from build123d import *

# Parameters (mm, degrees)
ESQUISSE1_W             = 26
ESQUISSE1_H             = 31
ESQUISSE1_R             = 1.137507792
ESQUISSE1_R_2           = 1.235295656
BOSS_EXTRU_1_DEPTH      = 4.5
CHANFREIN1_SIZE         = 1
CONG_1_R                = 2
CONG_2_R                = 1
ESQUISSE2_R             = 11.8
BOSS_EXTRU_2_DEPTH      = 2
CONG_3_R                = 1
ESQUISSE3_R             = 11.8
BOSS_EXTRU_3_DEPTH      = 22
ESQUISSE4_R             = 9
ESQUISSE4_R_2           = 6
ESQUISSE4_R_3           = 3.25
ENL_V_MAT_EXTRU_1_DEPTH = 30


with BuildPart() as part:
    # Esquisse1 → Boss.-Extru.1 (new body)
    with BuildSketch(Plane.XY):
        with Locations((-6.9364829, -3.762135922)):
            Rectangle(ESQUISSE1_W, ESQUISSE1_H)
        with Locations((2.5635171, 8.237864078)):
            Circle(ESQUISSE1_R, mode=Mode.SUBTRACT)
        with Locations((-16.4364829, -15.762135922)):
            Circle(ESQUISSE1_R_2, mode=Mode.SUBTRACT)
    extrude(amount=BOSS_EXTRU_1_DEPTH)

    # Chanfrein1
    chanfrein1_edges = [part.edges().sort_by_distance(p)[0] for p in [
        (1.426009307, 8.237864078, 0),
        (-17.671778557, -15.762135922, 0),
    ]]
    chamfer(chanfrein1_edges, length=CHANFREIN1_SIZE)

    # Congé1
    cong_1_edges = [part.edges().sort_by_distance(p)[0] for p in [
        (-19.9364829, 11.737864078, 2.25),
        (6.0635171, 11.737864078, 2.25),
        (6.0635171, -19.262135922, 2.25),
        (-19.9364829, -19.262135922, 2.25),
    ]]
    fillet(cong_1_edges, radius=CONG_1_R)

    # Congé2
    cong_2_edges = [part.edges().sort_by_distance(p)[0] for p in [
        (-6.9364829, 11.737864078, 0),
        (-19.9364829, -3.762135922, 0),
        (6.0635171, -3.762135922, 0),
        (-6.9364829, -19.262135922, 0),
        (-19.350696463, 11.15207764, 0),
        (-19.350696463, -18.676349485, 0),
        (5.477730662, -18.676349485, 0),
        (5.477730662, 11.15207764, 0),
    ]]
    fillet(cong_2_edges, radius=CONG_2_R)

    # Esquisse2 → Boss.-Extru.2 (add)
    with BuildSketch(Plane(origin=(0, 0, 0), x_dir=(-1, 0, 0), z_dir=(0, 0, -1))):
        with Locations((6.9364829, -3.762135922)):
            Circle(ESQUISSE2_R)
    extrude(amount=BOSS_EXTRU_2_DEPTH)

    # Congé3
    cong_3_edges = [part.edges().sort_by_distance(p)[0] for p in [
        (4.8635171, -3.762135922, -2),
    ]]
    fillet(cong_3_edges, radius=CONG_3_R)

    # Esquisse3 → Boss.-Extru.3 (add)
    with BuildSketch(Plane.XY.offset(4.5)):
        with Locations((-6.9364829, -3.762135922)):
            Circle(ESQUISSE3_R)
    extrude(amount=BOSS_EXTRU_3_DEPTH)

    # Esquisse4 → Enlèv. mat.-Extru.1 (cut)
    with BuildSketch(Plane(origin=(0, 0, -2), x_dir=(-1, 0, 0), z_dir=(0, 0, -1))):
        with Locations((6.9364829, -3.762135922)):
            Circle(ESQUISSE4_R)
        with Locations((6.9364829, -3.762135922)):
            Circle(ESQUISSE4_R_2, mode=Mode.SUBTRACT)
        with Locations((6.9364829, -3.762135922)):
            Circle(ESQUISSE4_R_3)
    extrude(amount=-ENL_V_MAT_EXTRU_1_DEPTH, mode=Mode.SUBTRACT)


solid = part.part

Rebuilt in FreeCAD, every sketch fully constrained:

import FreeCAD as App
import Part
import Sketcher
from FreeCAD import Vector
Q = App.Units.Quantity


def edges_at(feature, points):
    """Names of the edges that pass closest to the given points."""
    edges = feature.Shape.Edges
    near = lambda p: min(range(len(edges)), key=lambda i: edges[i].distToShape(Part.Vertex(*p))[0])
    return sorted({f"Edge{near(p) + 1}" for p in points})


def add_polygon(sketch, points):
    """Adds a closed chain of lines whose ends are joined by coincident constraints."""
    first, n = sketch.GeometryCount, len(points)
    for a, b in zip(points, points[1:] + points[:1]):
        sketch.addGeometry(Part.LineSegment(App.Vector(*a, 0), App.Vector(*b, 0)), False)
    for i in range(n):
        sketch.addConstraint(Sketcher.Constraint("Coincident", first + i, 2, first + (i + 1) % n, 1))

doc = App.newDocument("Part")
params = doc.addObject("Spreadsheet::Sheet", "Params")
for row, (alias, value) in enumerate([
    ("sketch1_width", "26 mm"),
    ("sketch1_height", "31 mm"),
    ("pad1_length", "4.5 mm"),
    ("chamfer_size", "1 mm"),
    ("fillet_radius", "2 mm"),
    ("fillet2_radius", "1 mm"),
    ("sketch2_diameter", "23.6 mm"),
    ("pad2_length", "2 mm"),
    ("fillet3_radius", "1 mm"),
    ("sketch3_diameter", "23.6 mm"),
    ("pad3_length", "22 mm"),
    ("sketch4_diameter", "18 mm"),
    ("sketch4_diameter2", "12 mm"),
    ("sketch4_diameter3", "6.5 mm"),
    ("pocket1_length", "30 mm"),
], start=1):
    params.set(f"A{row}", alias)
    params.set(f"B{row}", "=" + value)
    params.setAlias(f"B{row}", alias)

body = doc.addObject("PartDesign::Body", "Body")
body.AllowCompound = True

sketch1 = body.newObject("Sketcher::SketchObject", "Sketch")
sketch1.AttachmentSupport = (doc.getObject("XY_Plane"), [""])
sketch1.MapMode = "FlatFace"
add_polygon(sketch1, [(-19.9, 11.7), (-19.9, -19.3), (6.1, -19.3), (6.1, 11.7)])
sketch1.addGeometry(Part.Circle(Vector(-16.4, -15.8, 0), Vector(0, 0, 1), 1.2), False)
sketch1.addGeometry(Part.Circle(Vector(2.6, 8.2, 0), Vector(0, 0, 1), 1.1), False)
sketch1.addConstraint([
    Sketcher.Constraint("Vertical", 0),
    Sketcher.Constraint("Horizontal", 1),
    Sketcher.Constraint("Vertical", 2),
    Sketcher.Constraint("Horizontal", 3),
    Sketcher.Constraint("DistanceX", 1, 1, 1, 2, Q("26 mm")),
    Sketcher.Constraint("DistanceY", 0, 2, 0, 1, Q("31 mm")),
    Sketcher.Constraint("DistanceX", 4, 3, 5, 3, Q("19 mm")),
    Sketcher.Constraint("DistanceY", 4, 3, 5, 3, Q("24 mm")),
    Sketcher.Constraint("DistanceX", 0, 2, 4, 3, Q("3.5 mm")),
    Sketcher.Constraint("DistanceY", 0, 2, 4, 3, Q("3.5 mm")),
    Sketcher.Constraint("Diameter", 4, Q("2.470591 mm")),
    Sketcher.Constraint("Diameter", 5, Q("2.275016 mm")),
    Sketcher.Constraint("DistanceX", 4, 3, -1, 1, Q("16.436483 mm")),
    Sketcher.Constraint("DistanceY", 4, 3, -1, 1, Q("15.762136 mm")),
])
sketch1.setExpression("Constraints[8]", "Params.sketch1_width")
sketch1.setExpression("Constraints[9]", "Params.sketch1_height")
pad1 = body.newObject("PartDesign::Pad", "Pad")
pad1.Profile = sketch1
pad1.setExpression("Length", "Params.pad1_length")
doc.recompute()

chamfer = body.newObject("PartDesign::Chamfer", "Chamfer")
chamfer.Base = (pad1, edges_at(pad1, [(1.426, 8.238, 0), (-17.672, -15.762, 0)]))
chamfer.setExpression("Size", "Params.chamfer_size")
doc.recompute()

fillet = body.newObject("PartDesign::Fillet", "Fillet")
fillet.Base = (chamfer, edges_at(chamfer, [
    (-19.936, 11.738, 2.25),
    (6.064, 11.738, 2.25),
    (6.064, -19.262, 2.25),
    (-19.936, -19.262, 2.25),
]))
fillet.setExpression("Radius", "Params.fillet_radius")
doc.recompute()

fillet2 = body.newObject("PartDesign::Fillet", "Fillet001")
fillet2.Base = (fillet, edges_at(fillet, [
    (-6.936, 11.738, 0),
    (-19.936, -3.762, 0),
    (6.064, -3.762, 0),
    (-6.936, -19.262, 0),
    (-19.351, 11.152, 0),
    (-19.351, -18.676, 0),
    (5.478, -18.676, 0),
    (5.478, 11.152, 0),
]))
fillet2.setExpression("Radius", "Params.fillet2_radius")

sketch2 = body.newObject("Sketcher::SketchObject", "Sketch001")
sketch2.AttachmentSupport = (doc.getObject("XY_Plane"), [""])
sketch2.MapMode = "FlatFace"
sketch2.addGeometry(Part.Circle(Vector(-7, -4, 0), Vector(0, 0, 1), 12), False)
sketch2.addConstraint([
    Sketcher.Constraint("Diameter", 0, Q("23.6 mm")),
    Sketcher.Constraint("DistanceX", 0, 3, -1, 1, Q("6.936483 mm")),
    Sketcher.Constraint("DistanceY", 0, 3, -1, 1, Q("3.762136 mm")),
])
sketch2.setExpression("Constraints[0]", "Params.sketch2_diameter")
pad2 = body.newObject("PartDesign::Pad", "Pad001")
pad2.Profile = sketch2
pad2.setExpression("Length", "Params.pad2_length")
pad2.Reversed = True
doc.recompute()

fillet3 = body.newObject("PartDesign::Fillet", "Fillet002")
fillet3.Base = (pad2, edges_at(pad2, [(4.864, -3.762, -2)]))
fillet3.setExpression("Radius", "Params.fillet3_radius")

sketch3 = body.newObject("Sketcher::SketchObject", "Sketch002")
sketch3.AttachmentSupport = (doc.getObject("XY_Plane"), [""])
sketch3.MapMode = "FlatFace"
sketch3.AttachmentOffset = App.Placement(Vector(0, 0, 4.5), App.Rotation())
sketch3.addGeometry(Part.Circle(Vector(-7, -4, 0), Vector(0, 0, 1), 12), False)
sketch3.addConstraint([
    Sketcher.Constraint("Diameter", 0, Q("23.6 mm")),
    Sketcher.Constraint("DistanceX", 0, 3, -1, 1, Q("6.936483 mm")),
    Sketcher.Constraint("DistanceY", 0, 3, -1, 1, Q("3.762136 mm")),
])
sketch3.setExpression("Constraints[0]", "Params.sketch3_diameter")
pad3 = body.newObject("PartDesign::Pad", "Pad002")
pad3.Profile = sketch3
pad3.setExpression("Length", "Params.pad3_length")

sketch4 = body.newObject("Sketcher::SketchObject", "Sketch003")
sketch4.AttachmentSupport = (doc.getObject("XY_Plane"), [""])
sketch4.MapMode = "FlatFace"
sketch4.AttachmentOffset = App.Placement(Vector(0, 0, -2), App.Rotation())
sketch4.addGeometry([
    Part.Circle(Vector(-6.9, -3.8, 0), Vector(0, 0, 1), 9),
    Part.Circle(Vector(-6.9, -3.8, 0), Vector(0, 0, 1), 6),
    Part.Circle(Vector(-6.9, -3.8, 0), Vector(0, 0, 1), 3.2),
], False)
sketch4.addConstraint([
    Sketcher.Constraint("Coincident", 1, 3, 0, 3),
    Sketcher.Constraint("Coincident", 2, 3, 0, 3),
    Sketcher.Constraint("Diameter", 0, Q("18 mm")),
    Sketcher.Constraint("Diameter", 1, Q("12 mm")),
    Sketcher.Constraint("Diameter", 2, Q("6.5 mm")),
    Sketcher.Constraint("DistanceX", 0, 3, -1, 1, Q("6.936483 mm")),
    Sketcher.Constraint("DistanceY", 0, 3, -1, 1, Q("3.762136 mm")),
])
sketch4.setExpression("Constraints[2]", "Params.sketch4_diameter")
sketch4.setExpression("Constraints[3]", "Params.sketch4_diameter2")
sketch4.setExpression("Constraints[4]", "Params.sketch4_diameter3")
pocket1 = body.newObject("PartDesign::Pocket", "Pocket")
pocket1.Profile = sketch4
pocket1.setExpression("Length", "Params.pocket1_length")
pocket1.Reversed = True

doc.recompute()
